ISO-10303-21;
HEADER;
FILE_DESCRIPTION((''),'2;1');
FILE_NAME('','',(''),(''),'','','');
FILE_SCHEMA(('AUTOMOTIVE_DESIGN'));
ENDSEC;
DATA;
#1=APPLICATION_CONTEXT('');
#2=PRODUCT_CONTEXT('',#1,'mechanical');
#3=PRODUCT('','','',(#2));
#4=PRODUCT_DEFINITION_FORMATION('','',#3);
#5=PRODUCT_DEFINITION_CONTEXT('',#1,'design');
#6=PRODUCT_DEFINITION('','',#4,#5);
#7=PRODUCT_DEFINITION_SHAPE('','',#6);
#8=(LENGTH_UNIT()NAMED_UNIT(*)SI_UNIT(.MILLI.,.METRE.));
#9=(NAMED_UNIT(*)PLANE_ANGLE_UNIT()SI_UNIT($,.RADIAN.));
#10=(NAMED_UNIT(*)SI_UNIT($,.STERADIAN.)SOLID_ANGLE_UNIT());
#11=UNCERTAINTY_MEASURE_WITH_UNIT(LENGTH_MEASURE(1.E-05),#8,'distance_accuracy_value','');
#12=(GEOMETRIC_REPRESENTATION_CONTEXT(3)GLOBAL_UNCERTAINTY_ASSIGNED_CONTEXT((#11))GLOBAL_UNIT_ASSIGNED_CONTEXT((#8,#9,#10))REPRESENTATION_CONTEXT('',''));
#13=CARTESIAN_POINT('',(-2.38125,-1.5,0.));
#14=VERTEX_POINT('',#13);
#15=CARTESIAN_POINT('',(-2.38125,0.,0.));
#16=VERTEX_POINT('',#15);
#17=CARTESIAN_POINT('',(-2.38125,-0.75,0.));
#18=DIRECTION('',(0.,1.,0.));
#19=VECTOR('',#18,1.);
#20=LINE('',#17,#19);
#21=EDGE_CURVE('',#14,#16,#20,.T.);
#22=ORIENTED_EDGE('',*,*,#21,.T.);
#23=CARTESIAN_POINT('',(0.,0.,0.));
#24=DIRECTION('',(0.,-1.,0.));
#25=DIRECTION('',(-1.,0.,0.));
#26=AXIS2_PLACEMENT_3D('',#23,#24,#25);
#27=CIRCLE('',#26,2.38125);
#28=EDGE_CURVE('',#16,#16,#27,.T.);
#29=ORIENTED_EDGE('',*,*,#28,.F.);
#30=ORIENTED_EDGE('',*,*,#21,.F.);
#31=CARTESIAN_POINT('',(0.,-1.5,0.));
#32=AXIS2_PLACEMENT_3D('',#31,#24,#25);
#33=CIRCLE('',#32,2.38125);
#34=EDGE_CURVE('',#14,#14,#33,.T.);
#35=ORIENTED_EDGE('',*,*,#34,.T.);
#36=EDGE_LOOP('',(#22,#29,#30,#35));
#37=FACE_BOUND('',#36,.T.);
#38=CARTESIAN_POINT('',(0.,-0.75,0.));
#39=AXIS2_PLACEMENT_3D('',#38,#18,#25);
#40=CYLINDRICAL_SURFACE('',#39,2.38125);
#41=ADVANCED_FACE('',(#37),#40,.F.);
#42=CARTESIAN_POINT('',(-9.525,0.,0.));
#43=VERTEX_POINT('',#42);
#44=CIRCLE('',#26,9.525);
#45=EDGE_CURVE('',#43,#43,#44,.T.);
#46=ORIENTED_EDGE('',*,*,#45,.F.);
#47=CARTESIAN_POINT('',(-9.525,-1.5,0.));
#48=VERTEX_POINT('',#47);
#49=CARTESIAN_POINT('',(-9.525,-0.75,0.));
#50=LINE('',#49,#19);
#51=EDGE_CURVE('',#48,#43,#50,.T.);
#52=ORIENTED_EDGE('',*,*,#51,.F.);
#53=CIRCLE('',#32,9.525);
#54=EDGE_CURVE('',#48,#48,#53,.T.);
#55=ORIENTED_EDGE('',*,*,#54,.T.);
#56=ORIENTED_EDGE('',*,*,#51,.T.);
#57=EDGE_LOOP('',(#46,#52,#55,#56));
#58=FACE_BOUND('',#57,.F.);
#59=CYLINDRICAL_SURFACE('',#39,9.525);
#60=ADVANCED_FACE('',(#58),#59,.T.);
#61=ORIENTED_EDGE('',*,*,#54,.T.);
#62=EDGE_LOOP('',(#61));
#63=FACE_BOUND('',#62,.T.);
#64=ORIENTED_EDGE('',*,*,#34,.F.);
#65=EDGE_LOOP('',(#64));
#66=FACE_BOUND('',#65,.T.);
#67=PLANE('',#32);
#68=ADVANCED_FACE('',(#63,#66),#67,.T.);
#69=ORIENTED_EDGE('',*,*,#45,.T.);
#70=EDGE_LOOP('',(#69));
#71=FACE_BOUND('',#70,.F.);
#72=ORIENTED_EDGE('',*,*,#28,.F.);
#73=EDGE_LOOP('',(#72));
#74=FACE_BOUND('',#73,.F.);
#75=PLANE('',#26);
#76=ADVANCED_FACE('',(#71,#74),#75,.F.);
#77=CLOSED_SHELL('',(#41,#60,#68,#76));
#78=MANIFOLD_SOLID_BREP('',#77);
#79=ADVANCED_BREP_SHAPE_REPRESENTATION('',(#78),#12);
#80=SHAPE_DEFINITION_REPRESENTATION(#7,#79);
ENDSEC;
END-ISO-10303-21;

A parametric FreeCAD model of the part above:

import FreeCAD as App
import Part
import Sketcher

V = App.Vector
Q = App.Units.Quantity


def add_polygon(sketch, points):
    """Adds a closed chain of lines whose ends are joined by coincident constraints."""
    first, n = sketch.GeometryCount, len(points)
    for a, b in zip(points, points[1:] + points[:1]):
        sketch.addGeometry(Part.LineSegment(App.Vector(*a, 0), App.Vector(*b, 0)), False)
    for i in range(n):
        sketch.addConstraint(Sketcher.Constraint("Coincident", first + i, 2, first + (i + 1) % n, 1))

doc = App.newDocument("Part")
body = doc.addObject("PartDesign::Body", "Body")

# Sketch on XY plane
sketch1 = body.newObject("Sketcher::SketchObject", "Sketch")
sketch1.AttachmentSupport = (doc.getObject("XY_Plane"), [""])
sketch1.MapMode = "FlatFace"
add_polygon(sketch1, [(-9.5, 0), (-9.5, -1.5), (-2.4, -1.5), (-2.4, 0)])  # lines 0-3
sketch1.addConstraint([
    Sketcher.Constraint("Vertical", 0),
    Sketcher.Constraint("Horizontal", 1),
    Sketcher.Constraint("Vertical", 2),
    Sketcher.Constraint("Horizontal", 3),
    Sketcher.Constraint("PointOnObject", 2, 2, -1),
    Sketcher.Constraint("DistanceY", 0, 2, 0, 1, Q("1.5 mm")),
    Sketcher.Constraint("DistanceX", 0, 2, -1, 1, Q("9.525 mm")),
    Sketcher.Constraint("DistanceX", 1, 1, 1, 2, Q("7.14375 mm")),
])
revolution = body.newObject("PartDesign::Revolution", "Revolution")
revolution.Profile = sketch1
revolution.ReferenceAxis = (sketch1, ["V_Axis"])
revolution.Angle = 360

doc.recompute()
